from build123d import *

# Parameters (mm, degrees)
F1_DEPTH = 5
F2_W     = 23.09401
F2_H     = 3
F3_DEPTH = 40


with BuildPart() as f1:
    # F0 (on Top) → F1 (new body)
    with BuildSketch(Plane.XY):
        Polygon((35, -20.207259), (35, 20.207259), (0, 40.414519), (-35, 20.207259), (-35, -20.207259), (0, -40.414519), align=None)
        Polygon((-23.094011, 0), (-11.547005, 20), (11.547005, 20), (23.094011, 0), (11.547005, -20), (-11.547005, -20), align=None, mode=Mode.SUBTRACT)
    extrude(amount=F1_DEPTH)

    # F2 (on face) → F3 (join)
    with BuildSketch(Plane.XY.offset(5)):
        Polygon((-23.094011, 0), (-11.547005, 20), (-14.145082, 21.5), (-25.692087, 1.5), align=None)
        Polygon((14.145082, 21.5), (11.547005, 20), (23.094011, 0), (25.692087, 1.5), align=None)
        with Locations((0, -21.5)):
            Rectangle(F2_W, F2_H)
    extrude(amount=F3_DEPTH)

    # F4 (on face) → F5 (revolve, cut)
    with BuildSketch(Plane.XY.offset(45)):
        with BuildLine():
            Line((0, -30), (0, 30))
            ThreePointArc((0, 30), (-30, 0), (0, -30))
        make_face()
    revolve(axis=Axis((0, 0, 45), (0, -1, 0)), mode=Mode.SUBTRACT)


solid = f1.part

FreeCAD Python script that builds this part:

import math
import FreeCAD as App
import Part
import Sketcher
Q = App.Units.Quantity


def add_polygon(sketch, points):
    """Adds a closed chain of lines whose ends are joined by coincident constraints."""
    first, n = sketch.GeometryCount, len(points)
    for a, b in zip(points, points[1:] + points[:1]):
        sketch.addGeometry(Part.LineSegment(App.Vector(*a, 0), App.Vector(*b, 0)), False)
    for i in range(n):
        sketch.addConstraint(Sketcher.Constraint("Coincident", first + i, 2, first + (i + 1) % n, 1))

doc = App.newDocument("Part")
body = doc.addObject("PartDesign::Body", "Body")

sketch1 = body.newObject("Sketcher::SketchObject", "Sketch")
sketch1.AttachmentSupport = (doc.getObject("XY_Plane"), [""])
sketch1.MapMode = "FlatFace"
add_polygon(sketch1, [(35, -20), (35, 20), (0, 40), (-35, 20), (-35, -20), (0, -40)])
add_polygon(sketch1, [(-12, -20), (-23, 0), (-12, 20), (12, 20), (23, 0), (12, -20)])
sketch1.addConstraint(Sketcher.Constraint("Vertical", 0))
sketch1.addConstraint(Sketcher.Constraint("Vertical", 3))
sketch1.addConstraint(Sketcher.Constraint("Horizontal", 8))
sketch1.addConstraint(Sketcher.Constraint("Horizontal", 11))
sketch1.addConstraint(Sketcher.Constraint("Symmetric", 0, 2, 3, 2, -1, 1))
sketch1.addConstraint(Sketcher.Constraint("Symmetric", 1, 2, 4, 2, -1, 1))
sketch1.addConstraint(Sketcher.Constraint("Symmetric", 6, 2, 9, 2, -1, 1))
sketch1.addConstraint(Sketcher.Constraint("Symmetric", 7, 2, 10, 2, -1, 1))
sketch1.addConstraint(Sketcher.Constraint("PointOnObject", 1, 2, -2))
sketch1.addConstraint(Sketcher.Constraint("PointOnObject", 6, 2, -1))
sketch1.addConstraint(Sketcher.Constraint("Parallel", 2, 5))
sketch1.addConstraint(Sketcher.Constraint("Perpendicular", 5, 6))
sketch1.addConstraint(Sketcher.Constraint("Perpendicular", 4, 7))
sketch1.addConstraint(Sketcher.Constraint("Parallel", 6, 9))
sketch1.addConstraint(Sketcher.Constraint("Horizontal", 0, 2, 2, 2))
sketch1.addConstraint(Sketcher.Constraint("Angle", 1, Q("149.999999 deg")))
sketch1.addConstraint(Sketcher.Constraint("DistanceX", -1, 1, 0, 2, 35.0))
sketch1.addConstraint(Sketcher.Constraint("DistanceY", -1, 1, 7, 2, 20.0))
sketch1.addConstraint(Sketcher.Constraint("DistanceX", 8, 1, 8, 2, 23.09401))
sketch1.addConstraint(Sketcher.Constraint("DistanceY", 0, 1, 0, 2, 40.414518))
pad1 = body.newObject("PartDesign::Pad", "Pad")
pad1.Profile = sketch1
pad1.Length = 5

sketch2 = body.newObject("Sketcher::SketchObject", "Sketch001")
sketch2.AttachmentSupport = (doc.getObject("XY_Plane"), [""])
sketch2.MapMode = "FlatFace"
sketch2.AttachmentOffset = App.Placement(App.Vector(0, 0, 5), App.Rotation())
add_polygon(sketch2, [(-23.1, 0), (-11.5, 20), (-14.1, 21.5), (-25.7, 1.5)])
add_polygon(sketch2, [(14.1, 21.5), (11.5, 20), (23.1, 0), (25.7, 1.5)])
add_polygon(sketch2, [(-11.5, -20), (-11.5, -23), (11.5, -23), (11.5, -20)])
sketch2.addConstraint(Sketcher.Constraint("Vertical", 8))
sketch2.addConstraint(Sketcher.Constraint("Horizontal", 9))
sketch2.addConstraint(Sketcher.Constraint("Vertical", 10))
sketch2.addConstraint(Sketcher.Constraint("Horizontal", 11))
sketch2.addConstraint(Sketcher.Constraint("Symmetric", 3, 2, 5, 2, -1, 1))
sketch2.addConstraint(Sketcher.Constraint("Symmetric", 0, 2, 10, 2, -1, 1))
sketch2.addConstraint(Sketcher.Constraint("Symmetric", 4, 2, 11, 2, -1, 1))
sketch2.addConstraint(Sketcher.Constraint("Symmetric", 2, 2, 6, 2, -2))
sketch2.addConstraint(Sketcher.Constraint("Symmetric", 1, 2, 7, 2, -2))
sketch2.addConstraint(Sketcher.Constraint("PointOnObject", 3, 2, -1))
sketch2.addConstraint(Sketcher.Constraint("Perpendicular", 0, 1))
sketch2.addConstraint(Sketcher.Constraint("Perpendicular", 1, 2))
sketch2.addConstraint(Sketcher.Constraint("Perpendicular", 2, 3))
sketch2.addConstraint(Sketcher.Constraint("Perpendicular", 4, 5))
sketch2.addConstraint(Sketcher.Constraint("DistanceY", 8, 2, 8, 1, 3.0))
sketch2.addConstraint(Sketcher.Constraint("Angle", 0, Q("59.999999 deg")))
sketch2.addConstraint(Sketcher.Constraint("Distance", 1, 3.000001))
sketch2.addConstraint(Sketcher.Constraint("DistanceY", -1, 1, 0, 2, 20.0))
sketch2.addConstraint(Sketcher.Constraint("DistanceX", 9, 1, 9, 2, 23.09401))
pad2 = body.newObject("PartDesign::Pad", "Pad001")
pad2.Profile = sketch2
pad2.Length = 40

sketch3 = body.newObject("Sketcher::SketchObject", "Sketch002")
sketch3.AttachmentSupport = (doc.getObject("XY_Plane"), [""])
sketch3.MapMode = "FlatFace"
sketch3.AttachmentOffset = App.Placement(App.Vector(0, 0, 45), App.Rotation())
sketch3.addGeometry(Part.LineSegment(App.Vector(0, -30, 0), App.Vector(0, 30, 0)), False)
sketch3.addGeometry(Part.ArcOfCircle(Part.Circle(App.Vector(0, 0, 0), App.Vector(0, 0, 1), 30), math.radians(90), math.radians(270)), False)
sketch3.addConstraint(Sketcher.Constraint("Coincident", 0, 1, 1, 2))
sketch3.addConstraint(Sketcher.Constraint("Coincident", 1, 1, 0, 2))
sketch3.addConstraint(Sketcher.Constraint("Vertical", 0))
sketch3.addConstraint(Sketcher.Constraint("Coincident", 1, 3, -1, 1))
sketch3.addConstraint(Sketcher.Constraint("PointOnObject", 0, 1, -2))
sketch3.addConstraint(Sketcher.Constraint("Radius", 1, 30.0))
groove = body.newObject("PartDesign::Groove", "Groove")
groove.Profile = sketch3
groove.ReferenceAxis = (sketch3, ["V_Axis"])
groove.Angle = 360

doc.recompute()
